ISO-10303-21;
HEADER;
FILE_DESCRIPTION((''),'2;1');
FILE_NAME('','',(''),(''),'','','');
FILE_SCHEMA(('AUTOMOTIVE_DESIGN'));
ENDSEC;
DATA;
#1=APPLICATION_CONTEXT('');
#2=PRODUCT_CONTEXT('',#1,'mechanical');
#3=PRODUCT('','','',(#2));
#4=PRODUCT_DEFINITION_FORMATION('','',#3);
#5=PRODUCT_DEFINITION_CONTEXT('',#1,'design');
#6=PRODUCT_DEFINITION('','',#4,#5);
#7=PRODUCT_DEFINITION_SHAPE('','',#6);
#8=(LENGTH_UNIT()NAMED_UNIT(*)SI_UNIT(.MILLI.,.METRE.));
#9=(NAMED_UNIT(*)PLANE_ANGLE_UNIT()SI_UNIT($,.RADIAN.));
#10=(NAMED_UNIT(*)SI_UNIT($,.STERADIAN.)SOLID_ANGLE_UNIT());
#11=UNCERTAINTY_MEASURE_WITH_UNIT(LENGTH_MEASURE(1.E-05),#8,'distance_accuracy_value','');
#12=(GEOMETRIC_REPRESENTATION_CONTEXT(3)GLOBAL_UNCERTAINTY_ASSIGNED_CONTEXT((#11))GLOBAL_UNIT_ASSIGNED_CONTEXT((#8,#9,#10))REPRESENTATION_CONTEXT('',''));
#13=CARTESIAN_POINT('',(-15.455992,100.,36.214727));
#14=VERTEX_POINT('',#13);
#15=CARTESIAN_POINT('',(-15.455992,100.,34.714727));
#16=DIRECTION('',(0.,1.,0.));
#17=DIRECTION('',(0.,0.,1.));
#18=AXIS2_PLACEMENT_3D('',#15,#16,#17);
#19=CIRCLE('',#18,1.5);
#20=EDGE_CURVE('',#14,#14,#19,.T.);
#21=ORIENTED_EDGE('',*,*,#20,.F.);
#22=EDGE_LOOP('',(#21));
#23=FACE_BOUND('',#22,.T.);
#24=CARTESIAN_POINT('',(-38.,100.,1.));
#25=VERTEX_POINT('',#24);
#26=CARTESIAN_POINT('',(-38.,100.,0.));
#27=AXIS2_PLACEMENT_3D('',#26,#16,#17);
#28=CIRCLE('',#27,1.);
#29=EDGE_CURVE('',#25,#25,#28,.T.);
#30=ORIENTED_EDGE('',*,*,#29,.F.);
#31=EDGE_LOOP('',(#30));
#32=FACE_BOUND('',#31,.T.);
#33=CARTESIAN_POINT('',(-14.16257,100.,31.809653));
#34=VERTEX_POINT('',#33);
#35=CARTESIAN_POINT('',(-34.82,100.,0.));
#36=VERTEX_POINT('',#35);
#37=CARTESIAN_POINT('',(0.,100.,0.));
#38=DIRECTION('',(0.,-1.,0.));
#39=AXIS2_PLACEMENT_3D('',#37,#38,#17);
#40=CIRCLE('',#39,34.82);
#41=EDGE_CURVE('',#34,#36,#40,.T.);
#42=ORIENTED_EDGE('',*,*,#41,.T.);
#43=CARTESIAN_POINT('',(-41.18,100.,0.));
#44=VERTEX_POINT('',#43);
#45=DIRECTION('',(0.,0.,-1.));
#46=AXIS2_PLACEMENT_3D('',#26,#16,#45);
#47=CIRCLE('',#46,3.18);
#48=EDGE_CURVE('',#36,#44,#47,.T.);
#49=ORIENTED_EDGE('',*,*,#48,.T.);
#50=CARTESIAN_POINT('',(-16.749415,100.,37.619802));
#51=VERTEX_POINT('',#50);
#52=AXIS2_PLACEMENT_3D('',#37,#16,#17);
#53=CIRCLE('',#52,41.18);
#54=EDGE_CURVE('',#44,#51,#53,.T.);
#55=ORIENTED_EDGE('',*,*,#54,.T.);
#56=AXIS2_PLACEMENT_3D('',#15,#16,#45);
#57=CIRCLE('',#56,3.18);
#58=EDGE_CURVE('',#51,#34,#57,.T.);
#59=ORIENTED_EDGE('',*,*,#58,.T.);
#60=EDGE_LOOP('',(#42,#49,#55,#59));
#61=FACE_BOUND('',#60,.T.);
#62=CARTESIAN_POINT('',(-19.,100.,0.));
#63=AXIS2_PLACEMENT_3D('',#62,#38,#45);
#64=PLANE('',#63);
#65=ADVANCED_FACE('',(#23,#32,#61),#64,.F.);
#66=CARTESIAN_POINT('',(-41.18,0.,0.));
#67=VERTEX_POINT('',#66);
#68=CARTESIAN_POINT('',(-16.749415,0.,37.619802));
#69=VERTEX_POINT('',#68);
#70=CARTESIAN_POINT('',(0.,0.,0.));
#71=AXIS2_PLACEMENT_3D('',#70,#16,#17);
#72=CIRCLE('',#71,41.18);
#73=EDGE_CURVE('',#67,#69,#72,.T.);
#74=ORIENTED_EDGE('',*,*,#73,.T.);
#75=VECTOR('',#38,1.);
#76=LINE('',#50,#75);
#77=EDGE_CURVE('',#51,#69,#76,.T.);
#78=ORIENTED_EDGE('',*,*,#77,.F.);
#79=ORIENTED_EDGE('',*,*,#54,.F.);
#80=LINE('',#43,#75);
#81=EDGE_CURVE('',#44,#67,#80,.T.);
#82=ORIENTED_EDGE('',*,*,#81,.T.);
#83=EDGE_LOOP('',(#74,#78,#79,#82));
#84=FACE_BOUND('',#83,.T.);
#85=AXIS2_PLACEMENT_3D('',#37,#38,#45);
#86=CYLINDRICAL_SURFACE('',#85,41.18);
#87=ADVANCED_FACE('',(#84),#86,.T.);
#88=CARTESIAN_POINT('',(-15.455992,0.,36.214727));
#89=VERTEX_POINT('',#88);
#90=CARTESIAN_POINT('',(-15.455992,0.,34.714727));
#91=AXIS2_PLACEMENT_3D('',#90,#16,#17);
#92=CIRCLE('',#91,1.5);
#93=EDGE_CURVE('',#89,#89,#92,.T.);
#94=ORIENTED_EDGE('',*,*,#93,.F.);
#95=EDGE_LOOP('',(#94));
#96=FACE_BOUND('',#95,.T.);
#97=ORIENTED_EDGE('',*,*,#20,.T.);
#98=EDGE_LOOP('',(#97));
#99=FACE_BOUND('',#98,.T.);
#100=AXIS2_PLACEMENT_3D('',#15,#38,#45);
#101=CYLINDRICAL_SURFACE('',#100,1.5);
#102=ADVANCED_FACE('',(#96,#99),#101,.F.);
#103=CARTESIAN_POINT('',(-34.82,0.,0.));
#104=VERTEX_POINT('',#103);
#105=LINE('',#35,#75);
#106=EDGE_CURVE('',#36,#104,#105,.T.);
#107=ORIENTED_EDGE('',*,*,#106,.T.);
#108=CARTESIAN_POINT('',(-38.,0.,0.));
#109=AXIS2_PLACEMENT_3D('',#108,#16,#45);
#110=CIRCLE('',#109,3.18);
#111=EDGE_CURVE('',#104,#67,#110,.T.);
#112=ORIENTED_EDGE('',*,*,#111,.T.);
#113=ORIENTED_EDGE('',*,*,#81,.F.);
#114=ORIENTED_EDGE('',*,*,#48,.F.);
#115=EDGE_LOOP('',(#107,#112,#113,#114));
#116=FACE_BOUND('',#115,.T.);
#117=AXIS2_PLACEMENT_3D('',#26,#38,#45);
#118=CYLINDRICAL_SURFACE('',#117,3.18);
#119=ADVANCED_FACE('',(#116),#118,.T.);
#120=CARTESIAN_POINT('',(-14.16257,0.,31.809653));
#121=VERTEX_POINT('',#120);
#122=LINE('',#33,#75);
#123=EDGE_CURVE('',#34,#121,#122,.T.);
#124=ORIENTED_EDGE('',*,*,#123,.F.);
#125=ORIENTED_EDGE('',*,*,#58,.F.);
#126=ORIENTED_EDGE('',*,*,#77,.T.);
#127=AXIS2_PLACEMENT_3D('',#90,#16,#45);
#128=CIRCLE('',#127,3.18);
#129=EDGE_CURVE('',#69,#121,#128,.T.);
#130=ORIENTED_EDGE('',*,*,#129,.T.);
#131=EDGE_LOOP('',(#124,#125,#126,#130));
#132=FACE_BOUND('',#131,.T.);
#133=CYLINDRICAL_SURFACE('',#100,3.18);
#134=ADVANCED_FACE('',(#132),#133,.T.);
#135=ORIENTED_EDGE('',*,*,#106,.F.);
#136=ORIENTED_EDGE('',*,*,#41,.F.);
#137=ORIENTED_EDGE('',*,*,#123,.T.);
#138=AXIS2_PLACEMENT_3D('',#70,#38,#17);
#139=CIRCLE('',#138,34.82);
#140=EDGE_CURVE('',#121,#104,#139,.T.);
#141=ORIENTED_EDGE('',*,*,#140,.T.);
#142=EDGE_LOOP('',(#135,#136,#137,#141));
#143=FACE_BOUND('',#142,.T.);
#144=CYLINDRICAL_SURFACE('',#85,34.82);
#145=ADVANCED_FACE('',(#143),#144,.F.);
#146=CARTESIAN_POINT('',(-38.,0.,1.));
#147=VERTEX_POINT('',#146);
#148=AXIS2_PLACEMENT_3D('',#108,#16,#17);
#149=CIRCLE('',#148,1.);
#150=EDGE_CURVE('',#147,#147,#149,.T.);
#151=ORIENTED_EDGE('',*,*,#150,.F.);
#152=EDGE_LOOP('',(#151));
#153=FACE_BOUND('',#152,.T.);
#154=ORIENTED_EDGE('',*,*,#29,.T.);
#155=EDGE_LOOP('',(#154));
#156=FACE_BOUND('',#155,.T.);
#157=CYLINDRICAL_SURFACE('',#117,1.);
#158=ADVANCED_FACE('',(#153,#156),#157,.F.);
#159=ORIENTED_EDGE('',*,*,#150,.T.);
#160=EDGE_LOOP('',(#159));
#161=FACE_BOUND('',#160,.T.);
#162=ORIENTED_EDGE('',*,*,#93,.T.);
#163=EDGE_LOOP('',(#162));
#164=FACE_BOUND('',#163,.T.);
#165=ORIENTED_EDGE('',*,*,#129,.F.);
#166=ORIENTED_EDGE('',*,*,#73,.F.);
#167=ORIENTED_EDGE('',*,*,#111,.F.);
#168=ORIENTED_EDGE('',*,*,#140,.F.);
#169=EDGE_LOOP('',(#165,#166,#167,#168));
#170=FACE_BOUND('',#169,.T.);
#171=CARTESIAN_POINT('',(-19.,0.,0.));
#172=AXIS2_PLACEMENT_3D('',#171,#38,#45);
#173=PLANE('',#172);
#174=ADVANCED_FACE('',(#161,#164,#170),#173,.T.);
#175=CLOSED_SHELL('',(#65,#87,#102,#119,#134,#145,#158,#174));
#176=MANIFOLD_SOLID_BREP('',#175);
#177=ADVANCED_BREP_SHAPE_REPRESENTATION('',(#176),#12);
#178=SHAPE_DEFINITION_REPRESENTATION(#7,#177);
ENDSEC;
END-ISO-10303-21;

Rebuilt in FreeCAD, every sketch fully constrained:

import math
import FreeCAD as App
import Part
import Sketcher

V = App.Vector
Q = App.Units.Quantity

doc = App.newDocument("Part")
params = doc.addObject("Spreadsheet::Sheet", "Params")
for row, (alias, value) in enumerate([
    ("sketch1_diameter", "3 mm"),
    ("sketch1_diameter2", "2 mm"),
    ("sketch1_radius", "41.18 mm"),
    ("sketch1_radius2", "3.18 mm"),
    ("pad1_length", "100 mm"),
], start=1):
    params.set(f"A{row}", alias)
    params.set(f"B{row}", "=" + value)
    params.setAlias(f"B{row}", alias)

body = doc.addObject("PartDesign::Body", "Body")

sketch1 = doc.addObject("Sketcher::SketchObject", "Sketch")
body.addObject(sketch1)
sketch1.AttachmentSupport = (doc.XZ_Plane, [""])
sketch1.MapMode = "FlatFace"
sketch1.addGeometry(Part.ArcOfCircle(Part.Circle(V(0, 0, 0), V(0, 0, 1), 41.2), math.radians(114), math.radians(180)), False)
sketch1.addGeometry(Part.ArcOfCircle(Part.Circle(V(-15.5, 34.7, 0), V(0, 0, 1), 3.2), math.radians(-66), math.radians(114)), False)
sketch1.addGeometry(Part.ArcOfCircle(Part.Circle(V(0, 0, 0), V(0, 0, 1), 34.8), math.radians(114), math.radians(180)), False)
sketch1.addGeometry(Part.ArcOfCircle(Part.Circle(V(-38, 0, 0), V(0, 0, 1), 3.2), math.radians(180), math.radians(360)), False)
sketch1.addGeometry(Part.Circle(V(-15.5, 34.7, 0), V(0, 0, 1), 1.5), False)
sketch1.addGeometry(Part.Circle(V(-38, 0, 0), V(0, 0, 1), 1), False)
sketch1.addConstraint(Sketcher.Constraint("Tangent", 0, 1, 1, 2))
sketch1.addConstraint(Sketcher.Constraint("Tangent", 1, 1, 2, 1))
sketch1.addConstraint(Sketcher.Constraint("Tangent", 2, 2, 3, 2))
sketch1.addConstraint(Sketcher.Constraint("Tangent", 3, 1, 0, 2))
sketch1.addConstraint(Sketcher.Constraint("Coincident", 0, 3, -1, 1))
sketch1.addConstraint(Sketcher.Constraint("Coincident", 2, 3, -1, 1))
sketch1.addConstraint(Sketcher.Constraint("Coincident", 4, 3, 1, 3))
sketch1.addConstraint(Sketcher.Constraint("Coincident", 5, 3, 3, 3))
sketch1.addConstraint(Sketcher.Constraint("PointOnObject", 3, 3, -1))
sketch1.addConstraint(Sketcher.Constraint("Diameter", 4, Q("3 mm")))
sketch1.addConstraint(Sketcher.Constraint("Diameter", 5, Q("2 mm")))
sketch1.addConstraint(Sketcher.Constraint("Radius", 0, Q("41.18 mm")))
sketch1.addConstraint(Sketcher.Constraint("Radius", 1, Q("3.18 mm")))
sketch1.addConstraint(Sketcher.Constraint("DistanceY", -1, 1, 0, 1, Q("37.619802 mm")))
sketch1.setExpression("Constraints[9]", "Params.sketch1_diameter")
sketch1.setExpression("Constraints[10]", "Params.sketch1_diameter2")
sketch1.setExpression("Constraints[11]", "Params.sketch1_radius")
sketch1.setExpression("Constraints[12]", "Params.sketch1_radius2")
pad1 = doc.addObject("PartDesign::Pad", "Pad")
body.addObject(pad1)
pad1.Profile = sketch1
pad1.setExpression("Length", "Params.pad1_length")
pad1.Reversed = True

doc.recompute()
